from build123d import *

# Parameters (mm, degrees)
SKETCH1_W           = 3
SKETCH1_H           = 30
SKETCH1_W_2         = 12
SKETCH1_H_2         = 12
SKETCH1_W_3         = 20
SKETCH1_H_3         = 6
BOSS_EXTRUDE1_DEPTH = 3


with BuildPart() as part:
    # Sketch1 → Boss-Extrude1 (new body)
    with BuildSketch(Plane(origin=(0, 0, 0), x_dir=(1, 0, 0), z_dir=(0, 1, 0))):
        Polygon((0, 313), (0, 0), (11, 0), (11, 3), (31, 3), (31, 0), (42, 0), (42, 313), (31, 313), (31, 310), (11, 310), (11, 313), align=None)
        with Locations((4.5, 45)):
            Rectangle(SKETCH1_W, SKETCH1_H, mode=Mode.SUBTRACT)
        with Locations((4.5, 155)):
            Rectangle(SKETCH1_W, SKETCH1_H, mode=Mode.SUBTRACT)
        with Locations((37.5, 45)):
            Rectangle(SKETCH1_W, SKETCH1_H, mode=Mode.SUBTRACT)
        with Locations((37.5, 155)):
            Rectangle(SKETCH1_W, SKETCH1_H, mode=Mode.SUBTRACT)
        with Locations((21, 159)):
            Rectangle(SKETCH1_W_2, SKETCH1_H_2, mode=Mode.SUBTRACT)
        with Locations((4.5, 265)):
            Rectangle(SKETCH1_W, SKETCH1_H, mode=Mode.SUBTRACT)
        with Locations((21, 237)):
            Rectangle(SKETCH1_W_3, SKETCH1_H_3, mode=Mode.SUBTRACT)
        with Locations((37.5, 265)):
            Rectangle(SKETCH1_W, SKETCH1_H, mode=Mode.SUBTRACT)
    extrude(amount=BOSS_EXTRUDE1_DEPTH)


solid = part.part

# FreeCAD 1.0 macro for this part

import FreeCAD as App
import Part
import Sketcher
from FreeCAD import Vector

doc = App.newDocument("Part")
body = doc.addObject("PartDesign::Body", "Body")

sketch1 = body.newObject("Sketcher::SketchObject", "Sketch")
sketch1.AttachmentSupport = (doc.getObject("XZ_Plane"), [""])
sketch1.MapMode = "FlatFace"
sketch1.addGeometry(Part.LineSegment(Vector(0, -313, 0), Vector(0, 0, 0)), False)
sketch1.addGeometry(Part.LineSegment(Vector(0, 0, 0), Vector(11, 0, 0)), False)
sketch1.addGeometry(Part.LineSegment(Vector(11, 0, 0), Vector(11, -3, 0)), False)
sketch1.addGeometry(Part.LineSegment(Vector(11, -3, 0), Vector(31, -3, 0)), False)
sketch1.addGeometry(Part.LineSegment(Vector(31, -3, 0), Vector(31, 0, 0)), False)
sketch1.addGeometry(Part.LineSegment(Vector(31, 0, 0), Vector(42, 0, 0)), False)
sketch1.addGeometry(Part.LineSegment(Vector(42, 0, 0), Vector(42, -313, 0)), False)
sketch1.addGeometry(Part.LineSegment(Vector(42, -313, 0), Vector(31, -313, 0)), False)
sketch1.addGeometry(Part.LineSegment(Vector(31, -313, 0), Vector(31, -310, 0)), False)
sketch1.addGeometry(Part.LineSegment(Vector(31, -310, 0), Vector(11, -310, 0)), False)
sketch1.addGeometry(Part.LineSegment(Vector(11, -310, 0), Vector(11, -313, 0)), False)
sketch1.addGeometry(Part.LineSegment(Vector(11, -313, 0), Vector(0, -313, 0)), False)
sketch1.addGeometry(Part.LineSegment(Vector(6, -30, 0), Vector(3, -30, 0)), False)
sketch1.addGeometry(Part.LineSegment(Vector(3, -30, 0), Vector(3, -60, 0)), False)
sketch1.addGeometry(Part.LineSegment(Vector(3, -60, 0), Vector(6, -60, 0)), False)
sketch1.addGeometry(Part.LineSegment(Vector(6, -60, 0), Vector(6, -30, 0)), False)
sketch1.addGeometry(Part.LineSegment(Vector(39, -30, 0), Vector(36, -30, 0)), False)
sketch1.addGeometry(Part.LineSegment(Vector(36, -30, 0), Vector(36, -60, 0)), False)
sketch1.addGeometry(Part.LineSegment(Vector(36, -60, 0), Vector(39, -60, 0)), False)
sketch1.addGeometry(Part.LineSegment(Vector(39, -60, 0), Vector(39, -30, 0)), False)
sketch1.addGeometry(Part.LineSegment(Vector(6, -140, 0), Vector(3, -140, 0)), False)
sketch1.addGeometry(Part.LineSegment(Vector(3, -140, 0), Vector(3, -170, 0)), False)
sketch1.addGeometry(Part.LineSegment(Vector(3, -170, 0), Vector(6, -170, 0)), False)
sketch1.addGeometry(Part.LineSegment(Vector(6, -170, 0), Vector(6, -140, 0)), False)
sketch1.addGeometry(Part.LineSegment(Vector(6, -250, 0), Vector(3, -250, 0)), False)
sketch1.addGeometry(Part.LineSegment(Vector(3, -250, 0), Vector(3, -280, 0)), False)
sketch1.addGeometry(Part.LineSegment(Vector(3, -280, 0), Vector(6, -280, 0)), False)
sketch1.addGeometry(Part.LineSegment(Vector(6, -280, 0), Vector(6, -250, 0)), False)
sketch1.addGeometry(Part.LineSegment(Vector(27, -153, 0), Vector(15, -153, 0)), False)
sketch1.addGeometry(Part.LineSegment(Vector(15, -153, 0), Vector(15, -165, 0)), False)
sketch1.addGeometry(Part.LineSegment(Vector(15, -165, 0), Vector(27, -165, 0)), False)
sketch1.addGeometry(Part.LineSegment(Vector(27, -165, 0), Vector(27, -153, 0)), False)
sketch1.addGeometry(Part.LineSegment(Vector(39, -140, 0), Vector(36, -140, 0)), False)
sketch1.addGeometry(Part.LineSegment(Vector(36, -140, 0), Vector(36, -170, 0)), False)
sketch1.addGeometry(Part.LineSegment(Vector(36, -170, 0), Vector(39, -170, 0)), False)
sketch1.addGeometry(Part.LineSegment(Vector(39, -170, 0), Vector(39, -140, 0)), False)
sketch1.addGeometry(Part.LineSegment(Vector(31, -234, 0), Vector(11, -234, 0)), False)
sketch1.addGeometry(Part.LineSegment(Vector(11, -234, 0), Vector(11, -240, 0)), False)
sketch1.addGeometry(Part.LineSegment(Vector(11, -240, 0), Vector(31, -240, 0)), False)
sketch1.addGeometry(Part.LineSegment(Vector(31, -240, 0), Vector(31, -234, 0)), False)
sketch1.addGeometry(Part.LineSegment(Vector(39, -250, 0), Vector(36, -250, 0)), False)
sketch1.addGeometry(Part.LineSegment(Vector(36, -250, 0), Vector(36, -280, 0)), False)
sketch1.addGeometry(Part.LineSegment(Vector(36, -280, 0), Vector(39, -280, 0)), False)
sketch1.addGeometry(Part.LineSegment(Vector(39, -280, 0), Vector(39, -250, 0)), False)
sketch1.addConstraint(Sketcher.Constraint("Coincident", 0, 2, 1, 1))
sketch1.addConstraint(Sketcher.Constraint("Coincident", 1, 2, 2, 1))
sketch1.addConstraint(Sketcher.Constraint("Coincident", 2, 2, 3, 1))
sketch1.addConstraint(Sketcher.Constraint("Coincident", 3, 2, 4, 1))
sketch1.addConstraint(Sketcher.Constraint("Coincident", 4, 2, 5, 1))
sketch1.addConstraint(Sketcher.Constraint("Coincident", 5, 2, 6, 1))
sketch1.addConstraint(Sketcher.Constraint("Coincident", 6, 2, 7, 1))
sketch1.addConstraint(Sketcher.Constraint("Coincident", 7, 2, 8, 1))
sketch1.addConstraint(Sketcher.Constraint("Coincident", 8, 2, 9, 1))
sketch1.addConstraint(Sketcher.Constraint("Coincident", 9, 2, 10, 1))
sketch1.addConstraint(Sketcher.Constraint("Coincident", 10, 2, 11, 1))
sketch1.addConstraint(Sketcher.Constraint("Coincident", 11, 2, 0, 1))
sketch1.addConstraint(Sketcher.Constraint("Coincident", 12, 2, 13, 1))
sketch1.addConstraint(Sketcher.Constraint("Coincident", 13, 2, 14, 1))
sketch1.addConstraint(Sketcher.Constraint("Coincident", 14, 2, 15, 1))
sketch1.addConstraint(Sketcher.Constraint("Coincident", 15, 2, 12, 1))
sketch1.addConstraint(Sketcher.Constraint("Coincident", 16, 2, 17, 1))
sketch1.addConstraint(Sketcher.Constraint("Coincident", 17, 2, 18, 1))
sketch1.addConstraint(Sketcher.Constraint("Coincident", 18, 2, 19, 1))
sketch1.addConstraint(Sketcher.Constraint("Coincident", 19, 2, 16, 1))
sketch1.addConstraint(Sketcher.Constraint("Coincident", 20, 2, 21, 1))
sketch1.addConstraint(Sketcher.Constraint("Coincident", 21, 2, 22, 1))
sketch1.addConstraint(Sketcher.Constraint("Coincident", 22, 2, 23, 1))
sketch1.addConstraint(Sketcher.Constraint("Coincident", 23, 2, 20, 1))
sketch1.addConstraint(Sketcher.Constraint("Coincident", 24, 2, 25, 1))
sketch1.addConstraint(Sketcher.Constraint("Coincident", 25, 2, 26, 1))
sketch1.addConstraint(Sketcher.Constraint("Coincident", 26, 2, 27, 1))
sketch1.addConstraint(Sketcher.Constraint("Coincident", 27, 2, 24, 1))
sketch1.addConstraint(Sketcher.Constraint("Coincident", 28, 2, 29, 1))
sketch1.addConstraint(Sketcher.Constraint("Coincident", 29, 2, 30, 1))
sketch1.addConstraint(Sketcher.Constraint("Coincident", 30, 2, 31, 1))
sketch1.addConstraint(Sketcher.Constraint("Coincident", 31, 2, 28, 1))
sketch1.addConstraint(Sketcher.Constraint("Coincident", 32, 2, 33, 1))
sketch1.addConstraint(Sketcher.Constraint("Coincident", 33, 2, 34, 1))
sketch1.addConstraint(Sketcher.Constraint("Coincident", 34, 2, 35, 1))
sketch1.addConstraint(Sketcher.Constraint("Coincident", 35, 2, 32, 1))
sketch1.addConstraint(Sketcher.Constraint("Coincident", 36, 2, 37, 1))
sketch1.addConstraint(Sketcher.Constraint("Coincident", 37, 2, 38, 1))
sketch1.addConstraint(Sketcher.Constraint("Coincident", 38, 2, 39, 1))
sketch1.addConstraint(Sketcher.Constraint("Coincident", 39, 2, 36, 1))
sketch1.addConstraint(Sketcher.Constraint("Coincident", 40, 2, 41, 1))
sketch1.addConstraint(Sketcher.Constraint("Coincident", 41, 2, 42, 1))
sketch1.addConstraint(Sketcher.Constraint("Coincident", 42, 2, 43, 1))
sketch1.addConstraint(Sketcher.Constraint("Coincident", 43, 2, 40, 1))
sketch1.addConstraint(Sketcher.Constraint("Vertical", 0))
sketch1.addConstraint(Sketcher.Constraint("Horizontal", 1))
sketch1.addConstraint(Sketcher.Constraint("Vertical", 2))
sketch1.addConstraint(Sketcher.Constraint("Horizontal", 3))
sketch1.addConstraint(Sketcher.Constraint("Vertical", 4))
sketch1.addConstraint(Sketcher.Constraint("Horizontal", 5))
sketch1.addConstraint(Sketcher.Constraint("Vertical", 6))
sketch1.addConstraint(Sketcher.Constraint("Horizontal", 7))
sketch1.addConstraint(Sketcher.Constraint("Vertical", 8))
sketch1.addConstraint(Sketcher.Constraint("Horizontal", 9))
sketch1.addConstraint(Sketcher.Constraint("Vertical", 10))
sketch1.addConstraint(Sketcher.Constraint("Horizontal", 11))
sketch1.addConstraint(Sketcher.Constraint("Horizontal", 12))
sketch1.addConstraint(Sketcher.Constraint("Vertical", 13))
sketch1.addConstraint(Sketcher.Constraint("Horizontal", 14))
sketch1.addConstraint(Sketcher.Constraint("Vertical", 15))
sketch1.addConstraint(Sketcher.Constraint("Horizontal", 16))
sketch1.addConstraint(Sketcher.Constraint("Vertical", 17))
sketch1.addConstraint(Sketcher.Constraint("Horizontal", 18))
sketch1.addConstraint(Sketcher.Constraint("Vertical", 19))
sketch1.addConstraint(Sketcher.Constraint("Horizontal", 20))
sketch1.addConstraint(Sketcher.Constraint("Vertical", 21))
sketch1.addConstraint(Sketcher.Constraint("Horizontal", 22))
sketch1.addConstraint(Sketcher.Constraint("Vertical", 23))
sketch1.addConstraint(Sketcher.Constraint("Horizontal", 24))
sketch1.addConstraint(Sketcher.Constraint("Vertical", 25))
sketch1.addConstraint(Sketcher.Constraint("Horizontal", 26))
sketch1.addConstraint(Sketcher.Constraint("Vertical", 27))
sketch1.addConstraint(Sketcher.Constraint("Horizontal", 28))
sketch1.addConstraint(Sketcher.Constraint("Vertical", 29))
sketch1.addConstraint(Sketcher.Constraint("Horizontal", 30))
sketch1.addConstraint(Sketcher.Constraint("Vertical", 31))
sketch1.addConstraint(Sketcher.Constraint("Horizontal", 32))
sketch1.addConstraint(Sketcher.Constraint("Vertical", 33))
sketch1.addConstraint(Sketcher.Constraint("Horizontal", 34))
sketch1.addConstraint(Sketcher.Constraint("Vertical", 35))
sketch1.addConstraint(Sketcher.Constraint("Horizontal", 36))
sketch1.addConstraint(Sketcher.Constraint("Vertical", 37))
sketch1.addConstraint(Sketcher.Constraint("Horizontal", 38))
sketch1.addConstraint(Sketcher.Constraint("Vertical", 39))
sketch1.addConstraint(Sketcher.Constraint("Horizontal", 40))
sketch1.addConstraint(Sketcher.Constraint("Vertical", 41))
sketch1.addConstraint(Sketcher.Constraint("Horizontal", 42))
sketch1.addConstraint(Sketcher.Constraint("Vertical", 43))
sketch1.addConstraint(Sketcher.Constraint("Coincident", 0, 2, -1, 1))
sketch1.addConstraint(Sketcher.Constraint("PointOnObject", 4, 2, -1))
sketch1.addConstraint(Sketcher.Constraint("Horizontal", 7, 2, 10, 2))
sketch1.addConstraint(Sketcher.Constraint("Horizontal", 15, 2, 16, 2))
sketch1.addConstraint(Sketcher.Constraint("Horizontal", 14, 2, 17, 2))
sketch1.addConstraint(Sketcher.Constraint("Horizontal", 23, 2, 32, 2))
sketch1.addConstraint(Sketcher.Constraint("Horizontal", 22, 2, 33, 2))
sketch1.addConstraint(Sketcher.Constraint("Horizontal", 27, 2, 40, 2))
sketch1.addConstraint(Sketcher.Constraint("Horizontal", 26, 2, 41, 2))
sketch1.addConstraint(Sketcher.Constraint("Vertical", 4, 2, 7, 2))
sketch1.addConstraint(Sketcher.Constraint("Vertical", 2, 2, 9, 2))
sketch1.addConstraint(Sketcher.Constraint("Vertical", 13, 2, 20, 2))
sketch1.addConstraint(Sketcher.Constraint("Vertical", 15, 2, 22, 2))
sketch1.addConstraint(Sketcher.Constraint("Vertical", 21, 2, 24, 2))
sketch1.addConstraint(Sketcher.Constraint("Vertical", 23, 2, 26, 2))
sketch1.addConstraint(Sketcher.Constraint("Vertical", 17, 2, 32, 2))
sketch1.addConstraint(Sketcher.Constraint("Vertical", 19, 2, 34, 2))
sketch1.addConstraint(Sketcher.Constraint("Vertical", 10, 2, 36, 2))
sketch1.addConstraint(Sketcher.Constraint("Vertical", 8, 2, 38, 2))
sketch1.addConstraint(Sketcher.Constraint("Vertical", 33, 2, 40, 2))
sketch1.addConstraint(Sketcher.Constraint("Vertical", 35, 2, 42, 2))
sketch1.addConstraint(Sketcher.Constraint("Equal", 1, 5))
sketch1.addConstraint(Sketcher.Constraint("Equal", 14, 16))
sketch1.addConstraint(Sketcher.Constraint("Equal", 42, 2))
sketch1.addConstraint(Sketcher.Constraint("Equal", 4, 8))
sketch1.addConstraint(Sketcher.Constraint("Equal", 19, 21))
sketch1.addConstraint(Sketcher.Constraint("Equal", 23, 25))
sketch1.addConstraint(Sketcher.Constraint("Equal", 30, 29))
sketch1.addConstraint(Sketcher.Constraint("DistanceX", 1, 1, 1, 2, 11.0))
sketch1.addConstraint(Sketcher.Constraint("DistanceX", 3, 1, 3, 2, 20.0))
sketch1.addConstraint(Sketcher.Constraint("DistanceX", 12, 2, 12, 1, 3.0))
sketch1.addConstraint(Sketcher.Constraint("DistanceX", 28, 2, 28, 1, 12.0))
sketch1.addConstraint(Sketcher.Constraint("DistanceY", 0, 1, 0, 2, 313.0))
sketch1.addConstraint(Sketcher.Constraint("DistanceY", 13, 2, 13, 1, 30.0))
sketch1.addConstraint(Sketcher.Constraint("DistanceY", 37, 2, 37, 1, 6.0))
sketch1.addConstraint(Sketcher.Constraint("DistanceX", -1, 1, 12, 2, 3.0))
sketch1.addConstraint(Sketcher.Constraint("DistanceY", 12, 2, -1, 1, 30.0))
sketch1.addConstraint(Sketcher.Constraint("DistanceX", -1, 1, 16, 2, 36.0))
sketch1.addConstraint(Sketcher.Constraint("DistanceY", 20, 2, -1, 1, 140.0))
sketch1.addConstraint(Sketcher.Constraint("DistanceY", 24, 2, -1, 1, 250.0))
sketch1.addConstraint(Sketcher.Constraint("DistanceX", -1, 1, 28, 2, 15.0))
sketch1.addConstraint(Sketcher.Constraint("DistanceY", 28, 2, -1, 1, 153.0))
sketch1.addConstraint(Sketcher.Constraint("DistanceY", 36, 2, -1, 1, 234.0))
pad1 = body.newObject("PartDesign::Pad", "Pad")
pad1.Profile = sketch1
pad1.Length = 3
pad1.Reversed = True

doc.recompute()
